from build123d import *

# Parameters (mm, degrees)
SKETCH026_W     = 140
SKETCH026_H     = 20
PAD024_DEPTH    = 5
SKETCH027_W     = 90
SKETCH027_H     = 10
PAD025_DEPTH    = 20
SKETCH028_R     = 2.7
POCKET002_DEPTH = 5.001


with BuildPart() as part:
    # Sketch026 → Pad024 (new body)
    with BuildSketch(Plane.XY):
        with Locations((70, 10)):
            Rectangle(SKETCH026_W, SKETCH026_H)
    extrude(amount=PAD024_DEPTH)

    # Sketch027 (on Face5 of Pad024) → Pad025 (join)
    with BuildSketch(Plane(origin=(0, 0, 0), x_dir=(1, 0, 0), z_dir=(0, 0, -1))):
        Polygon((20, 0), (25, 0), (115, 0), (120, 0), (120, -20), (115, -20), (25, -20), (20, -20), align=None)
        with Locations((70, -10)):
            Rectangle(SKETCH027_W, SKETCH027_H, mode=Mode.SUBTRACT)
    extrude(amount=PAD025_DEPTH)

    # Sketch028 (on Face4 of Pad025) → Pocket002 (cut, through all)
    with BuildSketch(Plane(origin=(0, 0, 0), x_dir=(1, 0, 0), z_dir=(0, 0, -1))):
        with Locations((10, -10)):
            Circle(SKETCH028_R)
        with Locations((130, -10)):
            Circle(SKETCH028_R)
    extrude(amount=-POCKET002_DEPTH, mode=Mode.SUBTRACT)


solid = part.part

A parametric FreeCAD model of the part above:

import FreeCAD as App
import Part
import Sketcher

doc = App.newDocument("Part")
body = doc.addObject("PartDesign::Body", "Body")

# Sketch on XY plane
sketch1 = doc.addObject("Sketcher::SketchObject", "Sketch")
body.addObject(sketch1)
sketch1.AttachmentSupport = (doc.XY_Plane, [""])
sketch1.MapMode = "FlatFace"
sketch1.addGeometry([
    Part.LineSegment(App.Vector(0, 20, 0), App.Vector(0, 0, 0)),
    Part.LineSegment(App.Vector(0, 0, 0), App.Vector(140, 0, 0)),
    Part.LineSegment(App.Vector(140, 0, 0), App.Vector(140, 20, 0)),
    Part.LineSegment(App.Vector(140, 20, 0), App.Vector(0, 20, 0)),
], False)
sketch1.addConstraint([
    Sketcher.Constraint("Coincident", 0, 2, 1, 1),
    Sketcher.Constraint("Coincident", 1, 2, 2, 1),
    Sketcher.Constraint("Coincident", 2, 2, 3, 1),
    Sketcher.Constraint("Coincident", 3, 2, 0, 1),
    Sketcher.Constraint("Vertical", 0),
    Sketcher.Constraint("Horizontal", 1),
    Sketcher.Constraint("Vertical", 2),
    Sketcher.Constraint("Horizontal", 3),
    Sketcher.Constraint("Coincident", 0, 2, -1, 1),
    Sketcher.Constraint("DistanceX", 1, 1, 1, 2, 140.0),
    Sketcher.Constraint("DistanceY", 0, 2, 0, 1, 20.0),
])
pad1 = doc.addObject("PartDesign::Pad", "Pad")
body.addObject(pad1)
pad1.Profile = sketch1
pad1.Length = 5

# Sketch on XY plane
sketch2 = doc.addObject("Sketcher::SketchObject", "Sketch001")
body.addObject(sketch2)
sketch2.AttachmentSupport = (doc.XY_Plane, [""])
sketch2.MapMode = "FlatFace"
sketch2.addGeometry([
    Part.LineSegment(App.Vector(120, 0, 0), App.Vector(20, 0, 0)),  # 0
    Part.LineSegment(App.Vector(20, 0, 0), App.Vector(20, 20, 0)),  # 1
    Part.LineSegment(App.Vector(20, 20, 0), App.Vector(120, 20, 0)),  # 2
    Part.LineSegment(App.Vector(120, 20, 0), App.Vector(120, 0, 0)),  # 3
    Part.LineSegment(App.Vector(25, 15, 0), App.Vector(25, 5, 0)),  # 4
    Part.LineSegment(App.Vector(25, 5, 0), App.Vector(115, 5, 0)),  # 5
    Part.LineSegment(App.Vector(115, 5, 0), App.Vector(115, 15, 0)),  # 6
    Part.LineSegment(App.Vector(115, 15, 0), App.Vector(25, 15, 0)),  # 7
], False)
sketch2.addConstraint([
    Sketcher.Constraint("Coincident", 0, 2, 1, 1),
    Sketcher.Constraint("Coincident", 1, 2, 2, 1),
    Sketcher.Constraint("Coincident", 2, 2, 3, 1),
    Sketcher.Constraint("Coincident", 3, 2, 0, 1),
    Sketcher.Constraint("Coincident", 4, 2, 5, 1),
    Sketcher.Constraint("Coincident", 5, 2, 6, 1),
    Sketcher.Constraint("Coincident", 6, 2, 7, 1),
    Sketcher.Constraint("Coincident", 7, 2, 4, 1),
    Sketcher.Constraint("Horizontal", 0),
    Sketcher.Constraint("Vertical", 1),
    Sketcher.Constraint("Horizontal", 2),
    Sketcher.Constraint("Vertical", 3),
    Sketcher.Constraint("Vertical", 4),
    Sketcher.Constraint("Horizontal", 5),
    Sketcher.Constraint("Vertical", 6),
    Sketcher.Constraint("Horizontal", 7),
    Sketcher.Constraint("PointOnObject", 0, 2, -1),
    Sketcher.Constraint("DistanceX", 0, 2, 0, 1, 100.0),
    Sketcher.Constraint("DistanceX", 5, 1, 5, 2, 90.0),
    Sketcher.Constraint("DistanceY", 1, 1, 1, 2, 20.0),
    Sketcher.Constraint("DistanceY", 4, 2, 4, 1, 10.0),
    Sketcher.Constraint("DistanceX", -1, 1, 0, 2, 20.0),
    Sketcher.Constraint("DistanceX", -1, 1, 4, 2, 25.0),
    Sketcher.Constraint("DistanceY", -1, 1, 4, 2, 5.0),
])
pad2 = doc.addObject("PartDesign::Pad", "Pad001")
body.addObject(pad2)
pad2.Profile = sketch2
pad2.Length = 20
pad2.Reversed = True

# Sketch on XY plane
sketch3 = doc.addObject("Sketcher::SketchObject", "Sketch002")
body.addObject(sketch3)
sketch3.AttachmentSupport = (doc.XY_Plane, [""])
sketch3.MapMode = "FlatFace"
sketch3.addGeometry([
    Part.Circle(App.Vector(10, 10, 0), App.Vector(0, 0, 1), 2.7),
    Part.Circle(App.Vector(130, 10, 0), App.Vector(0, 0, 1), 2.7),
], False)
sketch3.addConstraint([
    Sketcher.Constraint("Equal", 0, 1),
    Sketcher.Constraint("Horizontal", 0, 3, 1, 3),
    Sketcher.Constraint("Diameter", 0, 5.4),
    Sketcher.Constraint("DistanceX", -1, 1, 0, 3, 10.0),
    Sketcher.Constraint("DistanceY", -1, 1, 0, 3, 10.0),
    Sketcher.Constraint("DistanceX", -1, 1, 1, 3, 130.0),
])
pocket1 = doc.addObject("PartDesign::Pocket", "Pocket")
body.addObject(pocket1)
pocket1.Profile = sketch3
pocket1.Type = "ThroughAll"
pocket1.Reversed = True

doc.recompute()
